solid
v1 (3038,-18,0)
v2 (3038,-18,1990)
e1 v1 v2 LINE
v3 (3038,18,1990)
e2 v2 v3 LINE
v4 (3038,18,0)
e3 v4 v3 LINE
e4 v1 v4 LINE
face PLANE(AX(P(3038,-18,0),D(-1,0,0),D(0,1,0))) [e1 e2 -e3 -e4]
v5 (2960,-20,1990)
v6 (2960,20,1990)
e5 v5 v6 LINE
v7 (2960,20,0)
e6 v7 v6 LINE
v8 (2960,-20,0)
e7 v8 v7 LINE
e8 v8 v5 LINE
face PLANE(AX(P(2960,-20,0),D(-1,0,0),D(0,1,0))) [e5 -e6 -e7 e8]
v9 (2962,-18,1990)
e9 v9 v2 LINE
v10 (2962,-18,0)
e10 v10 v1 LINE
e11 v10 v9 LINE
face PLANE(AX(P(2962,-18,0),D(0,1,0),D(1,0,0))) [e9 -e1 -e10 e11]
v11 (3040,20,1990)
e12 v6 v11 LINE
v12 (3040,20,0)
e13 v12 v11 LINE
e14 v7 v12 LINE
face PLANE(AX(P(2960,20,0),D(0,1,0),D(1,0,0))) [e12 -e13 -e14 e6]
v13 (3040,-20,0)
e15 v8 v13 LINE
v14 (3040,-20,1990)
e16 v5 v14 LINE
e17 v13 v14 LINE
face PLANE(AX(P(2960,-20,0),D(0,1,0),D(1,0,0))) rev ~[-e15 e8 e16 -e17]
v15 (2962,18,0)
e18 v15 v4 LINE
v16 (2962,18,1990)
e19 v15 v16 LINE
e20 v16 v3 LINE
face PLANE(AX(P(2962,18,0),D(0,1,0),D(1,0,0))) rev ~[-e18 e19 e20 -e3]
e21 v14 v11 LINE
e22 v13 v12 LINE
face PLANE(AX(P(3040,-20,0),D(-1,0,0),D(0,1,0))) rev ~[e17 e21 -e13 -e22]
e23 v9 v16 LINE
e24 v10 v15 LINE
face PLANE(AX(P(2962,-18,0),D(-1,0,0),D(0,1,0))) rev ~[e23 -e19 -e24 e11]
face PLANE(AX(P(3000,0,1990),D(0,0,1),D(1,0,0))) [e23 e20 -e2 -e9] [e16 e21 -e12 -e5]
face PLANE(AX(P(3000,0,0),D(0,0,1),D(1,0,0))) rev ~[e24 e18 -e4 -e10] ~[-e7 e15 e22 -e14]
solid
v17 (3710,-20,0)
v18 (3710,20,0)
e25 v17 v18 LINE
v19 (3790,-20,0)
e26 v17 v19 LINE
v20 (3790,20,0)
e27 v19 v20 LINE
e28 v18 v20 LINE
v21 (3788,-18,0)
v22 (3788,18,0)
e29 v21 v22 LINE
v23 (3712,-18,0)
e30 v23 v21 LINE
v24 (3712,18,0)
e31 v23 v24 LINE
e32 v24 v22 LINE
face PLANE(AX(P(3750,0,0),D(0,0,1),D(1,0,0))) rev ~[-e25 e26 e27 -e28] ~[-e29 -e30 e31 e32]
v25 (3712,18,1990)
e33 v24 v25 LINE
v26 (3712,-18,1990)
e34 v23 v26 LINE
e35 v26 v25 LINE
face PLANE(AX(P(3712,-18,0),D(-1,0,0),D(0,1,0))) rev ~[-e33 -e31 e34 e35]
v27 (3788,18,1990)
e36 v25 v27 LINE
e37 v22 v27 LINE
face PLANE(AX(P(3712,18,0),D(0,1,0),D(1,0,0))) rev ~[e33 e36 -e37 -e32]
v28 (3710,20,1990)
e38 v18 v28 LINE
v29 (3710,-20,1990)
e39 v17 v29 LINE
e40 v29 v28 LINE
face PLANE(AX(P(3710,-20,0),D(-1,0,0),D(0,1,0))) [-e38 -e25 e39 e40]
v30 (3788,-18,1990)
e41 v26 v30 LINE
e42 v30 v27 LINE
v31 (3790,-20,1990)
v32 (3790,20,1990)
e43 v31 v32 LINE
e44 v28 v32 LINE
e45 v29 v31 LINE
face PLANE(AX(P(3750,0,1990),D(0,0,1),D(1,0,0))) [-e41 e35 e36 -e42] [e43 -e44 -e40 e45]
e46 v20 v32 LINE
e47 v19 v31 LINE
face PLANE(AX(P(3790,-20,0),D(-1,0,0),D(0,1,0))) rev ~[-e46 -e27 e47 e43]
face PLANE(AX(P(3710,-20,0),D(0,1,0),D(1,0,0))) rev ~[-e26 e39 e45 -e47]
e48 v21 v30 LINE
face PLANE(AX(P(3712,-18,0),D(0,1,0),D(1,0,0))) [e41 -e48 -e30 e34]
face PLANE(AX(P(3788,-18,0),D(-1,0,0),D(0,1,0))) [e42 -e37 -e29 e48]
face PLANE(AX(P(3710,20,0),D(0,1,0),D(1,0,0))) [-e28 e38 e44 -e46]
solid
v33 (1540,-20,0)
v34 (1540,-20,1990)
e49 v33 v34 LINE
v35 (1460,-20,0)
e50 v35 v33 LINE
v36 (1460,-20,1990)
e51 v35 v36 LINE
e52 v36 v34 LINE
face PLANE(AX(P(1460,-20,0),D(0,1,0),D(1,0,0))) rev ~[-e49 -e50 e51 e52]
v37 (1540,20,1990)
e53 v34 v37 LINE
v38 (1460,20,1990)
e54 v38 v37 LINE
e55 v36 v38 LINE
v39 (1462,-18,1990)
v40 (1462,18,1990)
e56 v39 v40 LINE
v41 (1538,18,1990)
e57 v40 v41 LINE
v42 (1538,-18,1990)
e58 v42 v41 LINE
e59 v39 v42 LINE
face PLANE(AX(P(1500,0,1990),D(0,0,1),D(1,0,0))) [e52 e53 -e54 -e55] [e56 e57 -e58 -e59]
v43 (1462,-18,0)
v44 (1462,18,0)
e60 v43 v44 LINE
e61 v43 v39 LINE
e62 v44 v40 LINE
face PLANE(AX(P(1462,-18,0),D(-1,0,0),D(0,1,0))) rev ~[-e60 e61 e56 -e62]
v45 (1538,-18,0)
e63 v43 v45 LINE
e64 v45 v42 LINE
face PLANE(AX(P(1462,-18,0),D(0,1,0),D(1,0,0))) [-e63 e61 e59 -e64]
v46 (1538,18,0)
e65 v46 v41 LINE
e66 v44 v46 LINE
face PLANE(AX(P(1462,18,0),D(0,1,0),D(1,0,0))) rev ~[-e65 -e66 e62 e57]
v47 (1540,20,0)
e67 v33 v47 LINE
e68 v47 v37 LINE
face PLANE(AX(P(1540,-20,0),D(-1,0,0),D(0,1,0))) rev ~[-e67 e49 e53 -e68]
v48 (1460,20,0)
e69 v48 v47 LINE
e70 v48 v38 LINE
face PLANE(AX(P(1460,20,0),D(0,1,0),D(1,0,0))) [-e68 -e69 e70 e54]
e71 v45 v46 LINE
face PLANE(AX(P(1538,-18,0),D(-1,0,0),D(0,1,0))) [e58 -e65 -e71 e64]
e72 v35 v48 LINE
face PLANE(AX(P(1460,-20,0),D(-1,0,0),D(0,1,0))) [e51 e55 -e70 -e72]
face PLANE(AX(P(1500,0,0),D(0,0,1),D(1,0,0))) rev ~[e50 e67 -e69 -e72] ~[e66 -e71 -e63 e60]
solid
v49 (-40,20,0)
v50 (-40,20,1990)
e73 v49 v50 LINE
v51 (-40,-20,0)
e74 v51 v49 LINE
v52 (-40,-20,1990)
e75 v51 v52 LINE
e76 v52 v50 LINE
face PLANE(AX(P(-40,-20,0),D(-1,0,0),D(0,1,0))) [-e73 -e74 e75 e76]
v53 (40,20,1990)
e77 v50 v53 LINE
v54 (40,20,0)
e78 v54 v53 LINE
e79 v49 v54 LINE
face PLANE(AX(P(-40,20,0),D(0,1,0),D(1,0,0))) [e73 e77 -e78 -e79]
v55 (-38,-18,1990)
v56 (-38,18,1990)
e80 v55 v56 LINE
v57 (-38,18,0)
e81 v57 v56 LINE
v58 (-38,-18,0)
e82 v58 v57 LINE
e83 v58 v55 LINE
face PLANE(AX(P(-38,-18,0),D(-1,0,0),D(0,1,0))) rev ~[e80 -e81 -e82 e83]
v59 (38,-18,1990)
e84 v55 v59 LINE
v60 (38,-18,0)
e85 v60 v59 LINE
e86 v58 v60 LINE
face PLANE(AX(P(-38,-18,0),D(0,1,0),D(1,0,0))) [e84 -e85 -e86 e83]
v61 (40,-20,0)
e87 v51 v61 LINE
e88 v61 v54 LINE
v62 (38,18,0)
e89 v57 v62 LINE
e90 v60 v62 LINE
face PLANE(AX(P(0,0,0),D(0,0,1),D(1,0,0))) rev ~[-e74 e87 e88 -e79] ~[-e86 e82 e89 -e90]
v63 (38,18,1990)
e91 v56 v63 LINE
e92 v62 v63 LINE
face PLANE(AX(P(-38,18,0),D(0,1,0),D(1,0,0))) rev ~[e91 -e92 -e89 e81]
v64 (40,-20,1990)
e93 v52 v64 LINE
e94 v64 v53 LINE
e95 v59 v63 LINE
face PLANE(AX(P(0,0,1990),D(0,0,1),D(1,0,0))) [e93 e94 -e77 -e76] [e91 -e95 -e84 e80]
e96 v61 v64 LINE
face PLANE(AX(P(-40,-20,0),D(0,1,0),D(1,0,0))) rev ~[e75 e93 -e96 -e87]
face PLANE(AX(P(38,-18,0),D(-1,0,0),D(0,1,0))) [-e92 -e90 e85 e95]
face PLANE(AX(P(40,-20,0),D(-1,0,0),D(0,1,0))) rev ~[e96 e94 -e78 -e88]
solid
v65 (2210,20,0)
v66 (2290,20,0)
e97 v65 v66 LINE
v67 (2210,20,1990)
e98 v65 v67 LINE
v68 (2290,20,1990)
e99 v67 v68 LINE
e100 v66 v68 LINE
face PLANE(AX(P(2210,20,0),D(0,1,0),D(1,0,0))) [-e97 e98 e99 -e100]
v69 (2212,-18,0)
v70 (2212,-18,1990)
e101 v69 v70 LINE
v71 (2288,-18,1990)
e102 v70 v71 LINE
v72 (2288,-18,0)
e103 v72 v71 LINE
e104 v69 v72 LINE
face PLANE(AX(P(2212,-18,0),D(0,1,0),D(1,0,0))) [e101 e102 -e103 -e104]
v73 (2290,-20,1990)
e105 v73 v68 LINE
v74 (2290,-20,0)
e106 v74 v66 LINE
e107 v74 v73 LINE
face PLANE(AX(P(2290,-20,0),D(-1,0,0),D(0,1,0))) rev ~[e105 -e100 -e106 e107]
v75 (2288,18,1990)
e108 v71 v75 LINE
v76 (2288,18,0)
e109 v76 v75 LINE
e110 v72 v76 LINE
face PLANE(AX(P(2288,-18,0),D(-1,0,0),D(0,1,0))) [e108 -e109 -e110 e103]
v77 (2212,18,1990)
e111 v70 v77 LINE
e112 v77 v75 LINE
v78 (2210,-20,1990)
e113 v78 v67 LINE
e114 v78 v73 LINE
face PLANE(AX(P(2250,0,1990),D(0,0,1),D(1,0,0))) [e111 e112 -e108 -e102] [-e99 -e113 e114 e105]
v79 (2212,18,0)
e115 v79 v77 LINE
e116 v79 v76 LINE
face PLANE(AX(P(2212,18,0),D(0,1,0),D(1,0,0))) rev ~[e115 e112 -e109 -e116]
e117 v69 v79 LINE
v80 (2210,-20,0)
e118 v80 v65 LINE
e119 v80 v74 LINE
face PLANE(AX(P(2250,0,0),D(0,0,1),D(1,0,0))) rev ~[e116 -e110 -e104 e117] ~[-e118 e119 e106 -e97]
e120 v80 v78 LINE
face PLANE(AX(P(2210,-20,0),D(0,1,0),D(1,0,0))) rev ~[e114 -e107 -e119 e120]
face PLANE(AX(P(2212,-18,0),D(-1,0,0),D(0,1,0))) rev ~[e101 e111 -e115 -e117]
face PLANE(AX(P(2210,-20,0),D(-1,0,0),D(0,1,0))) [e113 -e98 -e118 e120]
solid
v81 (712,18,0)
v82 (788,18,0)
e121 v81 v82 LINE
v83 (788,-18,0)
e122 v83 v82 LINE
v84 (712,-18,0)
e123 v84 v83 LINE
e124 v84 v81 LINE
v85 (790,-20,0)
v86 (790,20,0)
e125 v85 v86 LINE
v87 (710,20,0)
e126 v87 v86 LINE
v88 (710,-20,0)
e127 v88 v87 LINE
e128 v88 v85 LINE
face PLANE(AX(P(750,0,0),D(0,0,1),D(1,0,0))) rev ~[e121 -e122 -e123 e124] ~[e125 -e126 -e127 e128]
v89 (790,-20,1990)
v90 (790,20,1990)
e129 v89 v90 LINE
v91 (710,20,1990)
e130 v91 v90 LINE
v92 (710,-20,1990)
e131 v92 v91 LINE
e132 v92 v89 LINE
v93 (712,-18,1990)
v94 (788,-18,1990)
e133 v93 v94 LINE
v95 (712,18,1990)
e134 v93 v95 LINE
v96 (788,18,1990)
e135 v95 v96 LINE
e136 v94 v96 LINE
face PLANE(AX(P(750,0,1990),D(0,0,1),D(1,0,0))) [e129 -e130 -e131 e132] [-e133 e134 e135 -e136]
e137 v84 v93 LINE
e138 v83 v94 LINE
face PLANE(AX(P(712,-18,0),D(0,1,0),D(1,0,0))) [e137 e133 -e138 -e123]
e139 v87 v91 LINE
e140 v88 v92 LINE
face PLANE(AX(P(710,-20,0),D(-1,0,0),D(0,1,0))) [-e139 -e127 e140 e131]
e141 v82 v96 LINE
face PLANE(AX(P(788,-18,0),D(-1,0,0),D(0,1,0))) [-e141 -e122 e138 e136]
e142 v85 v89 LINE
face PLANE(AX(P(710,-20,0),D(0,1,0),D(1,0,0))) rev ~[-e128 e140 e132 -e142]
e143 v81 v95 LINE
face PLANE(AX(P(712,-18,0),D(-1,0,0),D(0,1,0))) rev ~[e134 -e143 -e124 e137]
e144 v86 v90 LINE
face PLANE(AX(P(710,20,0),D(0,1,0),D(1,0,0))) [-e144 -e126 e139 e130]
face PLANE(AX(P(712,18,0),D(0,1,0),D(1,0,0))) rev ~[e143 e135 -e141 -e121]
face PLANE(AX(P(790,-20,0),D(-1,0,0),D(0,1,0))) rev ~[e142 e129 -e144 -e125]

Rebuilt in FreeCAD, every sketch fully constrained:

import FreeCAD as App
import Part
import Sketcher

V = App.Vector


def add_polygon(sketch, points):
    """Adds a closed chain of lines whose ends are joined by coincident constraints."""
    first, n = sketch.GeometryCount, len(points)
    for a, b in zip(points, points[1:] + points[:1]):
        sketch.addGeometry(Part.LineSegment(App.Vector(*a, 0), App.Vector(*b, 0)), False)
    for i in range(n):
        sketch.addConstraint(Sketcher.Constraint("Coincident", first + i, 2, first + (i + 1) % n, 1))

doc = App.newDocument("Part")
params = doc.addObject("Spreadsheet::Sheet", "Params")
for row, (alias, value) in enumerate([
    ("sketch1_width", "80 mm"),
    ("sketch1_width2", "76 mm"),
    ("sketch1_height", "40 mm"),
    ("sketch1_height2", "36 mm"),
    ("pad1_length", "1990 mm"),
], start=1):
    params.set(f"A{row}", alias)
    params.set(f"B{row}", "=" + value)
    params.setAlias(f"B{row}", alias)

body = doc.addObject("PartDesign::Body", "Body")
body.AllowCompound = True

# Sketch on XY plane
sketch1 = body.newObject("Sketcher::SketchObject", "Sketch")
sketch1.AttachmentSupport = (doc.getObject("XY_Plane"), [""])
sketch1.MapMode = "FlatFace"
add_polygon(sketch1, [(-40, 20), (-40, -20), (40, -20), (40, 20)])  # lines 0-3
add_polygon(sketch1, [(38, -18), (-38, -18), (-38, 18), (38, 18)])  # lines 4-7
add_polygon(sketch1, [(710, 20), (710, -20), (790, -20), (790, 20)])  # lines 8-11
add_polygon(sketch1, [(788, -18), (712, -18), (712, 18), (788, 18)])  # lines 12-15
add_polygon(sketch1, [(1460, 20), (1460, -20), (1540, -20), (1540, 20)])  # lines 16-19
add_polygon(sketch1, [(1538, -18), (1462, -18), (1462, 18), (1538, 18)])  # lines 20-23
add_polygon(sketch1, [(2210, 20), (2210, -20), (2290, -20), (2290, 20)])  # lines 24-27
add_polygon(sketch1, [(2288, -18), (2212, -18), (2212, 18), (2288, 18)])  # lines 28-31
add_polygon(sketch1, [(2960, 20), (2960, -20), (3040, -20), (3040, 20)])  # lines 32-35
add_polygon(sketch1, [(3038, -18), (2962, -18), (2962, 18), (3038, 18)])  # lines 36-39
add_polygon(sketch1, [(3710, 20), (3710, -20), (3790, -20), (3790, 20)])  # lines 40-43
add_polygon(sketch1, [(3788, -18), (3712, -18), (3712, 18), (3788, 18)])  # lines 44-47
sketch1.addConstraint([
    Sketcher.Constraint("Vertical", 0),
    Sketcher.Constraint("Horizontal", 1),
    Sketcher.Constraint("Vertical", 2),
    Sketcher.Constraint("Horizontal", 3),
    Sketcher.Constraint("Horizontal", 4),
    Sketcher.Constraint("Vertical", 5),
    Sketcher.Constraint("Horizontal", 6),
    Sketcher.Constraint("Vertical", 7),
    Sketcher.Constraint("Vertical", 8),
    Sketcher.Constraint("Horizontal", 9),
    Sketcher.Constraint("Vertical", 10),
    Sketcher.Constraint("Horizontal", 11),
    Sketcher.Constraint("Horizontal", 12),
    Sketcher.Constraint("Vertical", 13),
    Sketcher.Constraint("Horizontal", 14),
    Sketcher.Constraint("Vertical", 15),
    Sketcher.Constraint("Vertical", 16),
    Sketcher.Constraint("Horizontal", 17),
    Sketcher.Constraint("Vertical", 18),
    Sketcher.Constraint("Horizontal", 19),
    Sketcher.Constraint("Horizontal", 20),
    Sketcher.Constraint("Vertical", 21),
    Sketcher.Constraint("Horizontal", 22),
    Sketcher.Constraint("Vertical", 23),
    Sketcher.Constraint("Vertical", 24),
    Sketcher.Constraint("Horizontal", 25),
    Sketcher.Constraint("Vertical", 26),
    Sketcher.Constraint("Horizontal", 27),
    Sketcher.Constraint("Horizontal", 28),
    Sketcher.Constraint("Vertical", 29),
    Sketcher.Constraint("Horizontal", 30),
    Sketcher.Constraint("Vertical", 31),
    Sketcher.Constraint("Vertical", 32),
    Sketcher.Constraint("Horizontal", 33),
    Sketcher.Constraint("Vertical", 34),
    Sketcher.Constraint("Horizontal", 35),
    Sketcher.Constraint("Horizontal", 36),
    Sketcher.Constraint("Vertical", 37),
    Sketcher.Constraint("Horizontal", 38),
    Sketcher.Constraint("Vertical", 39),
    Sketcher.Constraint("Vertical", 40),
    Sketcher.Constraint("Horizontal", 41),
    Sketcher.Constraint("Vertical", 42),
    Sketcher.Constraint("Horizontal", 43),
    Sketcher.Constraint("Horizontal", 44),
    Sketcher.Constraint("Vertical", 45),
    Sketcher.Constraint("Horizontal", 46),
    Sketcher.Constraint("Vertical", 47),
    Sketcher.Constraint("Symmetric", 0, 2, 2, 2, -1, 1),
    Sketcher.Constraint("Symmetric", 4, 2, 6, 2, -1, 1),
    Sketcher.Constraint("Horizontal", 1, 2, 8, 2),
    Sketcher.Constraint("Horizontal", 3, 2, 10, 2),
    Sketcher.Constraint("Horizontal", 7, 2, 12, 2),
    Sketcher.Constraint("Horizontal", 6, 2, 13, 2),
    Sketcher.Constraint("Horizontal", 9, 2, 16, 2),
    Sketcher.Constraint("Horizontal", 11, 2, 18, 2),
    Sketcher.Constraint("Horizontal", 15, 2, 20, 2),
    Sketcher.Constraint("Horizontal", 14, 2, 21, 2),
    Sketcher.Constraint("Horizontal", 17, 2, 24, 2),
    Sketcher.Constraint("Horizontal", 19, 2, 26, 2),
    Sketcher.Constraint("Horizontal", 23, 2, 28, 2),
    Sketcher.Constraint("Horizontal", 22, 2, 29, 2),
    Sketcher.Constraint("Horizontal", 25, 2, 32, 2),
    Sketcher.Constraint("Horizontal", 27, 2, 34, 2),
    Sketcher.Constraint("Horizontal", 31, 2, 36, 2),
    Sketcher.Constraint("Horizontal", 30, 2, 37, 2),
    Sketcher.Constraint("Horizontal", 33, 2, 40, 2),
    Sketcher.Constraint("Horizontal", 35, 2, 42, 2),
    Sketcher.Constraint("Horizontal", 39, 2, 44, 2),
    Sketcher.Constraint("Horizontal", 38, 2, 45, 2),
    Sketcher.Constraint("Equal", 3, 9),
    Sketcher.Constraint("Equal", 6, 12),
    Sketcher.Constraint("Equal", 11, 17),
    Sketcher.Constraint("Equal", 14, 20),
    Sketcher.Constraint("Equal", 19, 25),
    Sketcher.Constraint("Equal", 22, 28),
    Sketcher.Constraint("Equal", 27, 33),
    Sketcher.Constraint("Equal", 30, 36),
    Sketcher.Constraint("Equal", 35, 41),
    Sketcher.Constraint("Equal", 38, 44),
    Sketcher.Constraint("DistanceX", 1, 1, 1, 2, 80.0),
    Sketcher.Constraint("DistanceX", 4, 2, 4, 1, 76.0),
    Sketcher.Constraint("DistanceY", 0, 2, 0, 1, 40.0),
    Sketcher.Constraint("DistanceY", 5, 1, 5, 2, 36.0),
    Sketcher.Constraint("DistanceX", -1, 1, 8, 2, 710.0),
    Sketcher.Constraint("DistanceX", -1, 1, 12, 2, 712.0),
    Sketcher.Constraint("DistanceX", -1, 1, 16, 2, 1460.0),
    Sketcher.Constraint("DistanceX", -1, 1, 20, 2, 1462.0),
    Sketcher.Constraint("DistanceX", -1, 1, 24, 2, 2210.0),
    Sketcher.Constraint("DistanceX", -1, 1, 28, 2, 2212.0),
    Sketcher.Constraint("DistanceX", -1, 1, 32, 2, 2960.0),
    Sketcher.Constraint("DistanceX", -1, 1, 36, 2, 2962.0),
    Sketcher.Constraint("DistanceX", -1, 1, 40, 2, 3710.0),
    Sketcher.Constraint("DistanceX", -1, 1, 44, 2, 3712.0),
])
sketch1.setExpression("Constraints[128]", "Params.sketch1_width")
sketch1.setExpression("Constraints[129]", "Params.sketch1_width2")
sketch1.setExpression("Constraints[130]", "Params.sketch1_height")
sketch1.setExpression("Constraints[131]", "Params.sketch1_height2")
pad1 = body.newObject("PartDesign::Pad", "Pad")
pad1.Profile = sketch1
pad1.setExpression("Length", "Params.pad1_length")

doc.recompute()
